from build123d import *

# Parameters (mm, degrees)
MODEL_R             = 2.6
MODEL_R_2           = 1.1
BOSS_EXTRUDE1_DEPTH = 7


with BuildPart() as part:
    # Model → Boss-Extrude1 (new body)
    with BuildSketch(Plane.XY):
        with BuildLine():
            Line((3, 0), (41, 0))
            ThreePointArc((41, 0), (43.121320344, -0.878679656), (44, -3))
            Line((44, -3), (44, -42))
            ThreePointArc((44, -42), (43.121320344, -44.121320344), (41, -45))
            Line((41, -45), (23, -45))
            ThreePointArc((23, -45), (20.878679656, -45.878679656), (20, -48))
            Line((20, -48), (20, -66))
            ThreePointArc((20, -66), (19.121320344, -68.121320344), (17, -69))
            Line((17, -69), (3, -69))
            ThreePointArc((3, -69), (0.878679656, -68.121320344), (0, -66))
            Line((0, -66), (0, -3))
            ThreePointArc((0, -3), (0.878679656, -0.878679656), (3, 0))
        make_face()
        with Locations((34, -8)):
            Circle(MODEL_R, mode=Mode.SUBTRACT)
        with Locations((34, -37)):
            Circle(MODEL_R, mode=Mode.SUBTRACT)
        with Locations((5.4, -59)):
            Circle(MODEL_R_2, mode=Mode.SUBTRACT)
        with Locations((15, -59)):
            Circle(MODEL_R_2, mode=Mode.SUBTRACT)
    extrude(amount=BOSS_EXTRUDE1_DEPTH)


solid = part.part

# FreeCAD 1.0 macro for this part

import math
import FreeCAD as App
import Part
import Sketcher
from FreeCAD import Vector

doc = App.newDocument("Part")
body = doc.addObject("PartDesign::Body", "Body")

sketch1 = body.newObject("Sketcher::SketchObject", "Sketch")
sketch1.AttachmentSupport = (doc.getObject("XY_Plane"), [""])
sketch1.MapMode = "FlatFace"
sketch1.addGeometry([
    Part.LineSegment(Vector(41, 0, 0), Vector(3, 0, 0)),
    Part.ArcOfCircle(Part.Circle(Vector(3, -3, 0), Vector(0, 0, 1), 3), math.radians(90), math.radians(180)),
    Part.LineSegment(Vector(0, -3, 0), Vector(0, -66, 0)),
    Part.ArcOfCircle(Part.Circle(Vector(3, -66, 0), Vector(0, 0, 1), 3), math.radians(180), math.radians(270)),
    Part.LineSegment(Vector(3, -69, 0), Vector(17, -69, 0)),
    Part.ArcOfCircle(Part.Circle(Vector(17, -66, 0), Vector(0, 0, 1), 3), math.radians(-90), math.radians(0)),
    Part.LineSegment(Vector(20, -66, 0), Vector(20, -48, 0)),
    Part.ArcOfCircle(Part.Circle(Vector(23, -48, 0), Vector(0, 0, 1), 3), math.radians(90), math.radians(180)),
    Part.LineSegment(Vector(23, -45, 0), Vector(41, -45, 0)),
    Part.ArcOfCircle(Part.Circle(Vector(41, -42, 0), Vector(0, 0, 1), 3), math.radians(-90), math.radians(0)),
    Part.LineSegment(Vector(44, -42, 0), Vector(44, -3, 0)),
    Part.ArcOfCircle(Part.Circle(Vector(41, -3, 0), Vector(0, 0, 1), 3), math.radians(0), math.radians(90)),
    Part.Circle(Vector(34, -37, 0), Vector(0, 0, 1), 2.6),
    Part.Circle(Vector(15, -59, 0), Vector(0, 0, 1), 1.1),
    Part.Circle(Vector(5.4, -59, 0), Vector(0, 0, 1), 1.1),
    Part.Circle(Vector(34, -8, 0), Vector(0, 0, 1), 2.6),
], False)
sketch1.addConstraint([
    Sketcher.Constraint("Tangent", 0, 2, 1, 1),
    Sketcher.Constraint("Tangent", 1, 2, 2, 1),
    Sketcher.Constraint("Tangent", 2, 2, 3, 1),
    Sketcher.Constraint("Tangent", 3, 2, 4, 1),
    Sketcher.Constraint("Tangent", 4, 2, 5, 1),
    Sketcher.Constraint("Tangent", 5, 2, 6, 1),
    Sketcher.Constraint("Tangent", 6, 2, 7, 2),
    Sketcher.Constraint("Tangent", 7, 1, 8, 1),
    Sketcher.Constraint("Tangent", 8, 2, 9, 1),
    Sketcher.Constraint("Tangent", 9, 2, 10, 1),
    Sketcher.Constraint("Tangent", 10, 2, 11, 1),
    Sketcher.Constraint("Tangent", 11, 2, 0, 1),
    Sketcher.Constraint("Horizontal", 0),
    Sketcher.Constraint("Vertical", 2),
    Sketcher.Constraint("Horizontal", 4),
    Sketcher.Constraint("Vertical", 6),
    Sketcher.Constraint("Horizontal", 8),
    Sketcher.Constraint("Vertical", 10),
    Sketcher.Constraint("Equal", 1, 3),
    Sketcher.Constraint("Equal", 3, 5),
    Sketcher.Constraint("Equal", 5, 7),
    Sketcher.Constraint("Equal", 7, 9),
    Sketcher.Constraint("Equal", 9, 11),
    Sketcher.Constraint("Equal", 13, 14),
    Sketcher.Constraint("Equal", 12, 15),
    Sketcher.Constraint("PointOnObject", 0, 2, -1),
    Sketcher.Constraint("PointOnObject", 1, 2, -2),
    Sketcher.Constraint("Horizontal", 13, 3, 14, 3),
    Sketcher.Constraint("Vertical", 12, 3, 15, 3),
    Sketcher.Constraint("Equal", 8, 6),
    Sketcher.Constraint("Radius", 1, 3.0),
    Sketcher.Constraint("Diameter", 12, 5.2),
    Sketcher.Constraint("Diameter", 13, 2.2),
    Sketcher.Constraint("DistanceX", 0, 2, 0, 1, 38.0),
    Sketcher.Constraint("DistanceX", 4, 1, 4, 2, 14.0),
    Sketcher.Constraint("DistanceY", 2, 2, 2, 1, 63.0),
    Sketcher.Constraint("DistanceX", -1, 1, 12, 3, 34.0),
    Sketcher.Constraint("DistanceY", 12, 3, -1, 1, 37.0),
    Sketcher.Constraint("DistanceX", -1, 1, 13, 3, 15.0),
    Sketcher.Constraint("DistanceY", 13, 3, -1, 1, 59.0),
    Sketcher.Constraint("DistanceY", 15, 3, -1, 1, 8.0),
    Sketcher.Constraint("DistanceX", -1, 1, 14, 3, 5.4),
])
pad1 = body.newObject("PartDesign::Pad", "Pad")
pad1.Profile = sketch1
pad1.Length = 7

doc.recompute()
